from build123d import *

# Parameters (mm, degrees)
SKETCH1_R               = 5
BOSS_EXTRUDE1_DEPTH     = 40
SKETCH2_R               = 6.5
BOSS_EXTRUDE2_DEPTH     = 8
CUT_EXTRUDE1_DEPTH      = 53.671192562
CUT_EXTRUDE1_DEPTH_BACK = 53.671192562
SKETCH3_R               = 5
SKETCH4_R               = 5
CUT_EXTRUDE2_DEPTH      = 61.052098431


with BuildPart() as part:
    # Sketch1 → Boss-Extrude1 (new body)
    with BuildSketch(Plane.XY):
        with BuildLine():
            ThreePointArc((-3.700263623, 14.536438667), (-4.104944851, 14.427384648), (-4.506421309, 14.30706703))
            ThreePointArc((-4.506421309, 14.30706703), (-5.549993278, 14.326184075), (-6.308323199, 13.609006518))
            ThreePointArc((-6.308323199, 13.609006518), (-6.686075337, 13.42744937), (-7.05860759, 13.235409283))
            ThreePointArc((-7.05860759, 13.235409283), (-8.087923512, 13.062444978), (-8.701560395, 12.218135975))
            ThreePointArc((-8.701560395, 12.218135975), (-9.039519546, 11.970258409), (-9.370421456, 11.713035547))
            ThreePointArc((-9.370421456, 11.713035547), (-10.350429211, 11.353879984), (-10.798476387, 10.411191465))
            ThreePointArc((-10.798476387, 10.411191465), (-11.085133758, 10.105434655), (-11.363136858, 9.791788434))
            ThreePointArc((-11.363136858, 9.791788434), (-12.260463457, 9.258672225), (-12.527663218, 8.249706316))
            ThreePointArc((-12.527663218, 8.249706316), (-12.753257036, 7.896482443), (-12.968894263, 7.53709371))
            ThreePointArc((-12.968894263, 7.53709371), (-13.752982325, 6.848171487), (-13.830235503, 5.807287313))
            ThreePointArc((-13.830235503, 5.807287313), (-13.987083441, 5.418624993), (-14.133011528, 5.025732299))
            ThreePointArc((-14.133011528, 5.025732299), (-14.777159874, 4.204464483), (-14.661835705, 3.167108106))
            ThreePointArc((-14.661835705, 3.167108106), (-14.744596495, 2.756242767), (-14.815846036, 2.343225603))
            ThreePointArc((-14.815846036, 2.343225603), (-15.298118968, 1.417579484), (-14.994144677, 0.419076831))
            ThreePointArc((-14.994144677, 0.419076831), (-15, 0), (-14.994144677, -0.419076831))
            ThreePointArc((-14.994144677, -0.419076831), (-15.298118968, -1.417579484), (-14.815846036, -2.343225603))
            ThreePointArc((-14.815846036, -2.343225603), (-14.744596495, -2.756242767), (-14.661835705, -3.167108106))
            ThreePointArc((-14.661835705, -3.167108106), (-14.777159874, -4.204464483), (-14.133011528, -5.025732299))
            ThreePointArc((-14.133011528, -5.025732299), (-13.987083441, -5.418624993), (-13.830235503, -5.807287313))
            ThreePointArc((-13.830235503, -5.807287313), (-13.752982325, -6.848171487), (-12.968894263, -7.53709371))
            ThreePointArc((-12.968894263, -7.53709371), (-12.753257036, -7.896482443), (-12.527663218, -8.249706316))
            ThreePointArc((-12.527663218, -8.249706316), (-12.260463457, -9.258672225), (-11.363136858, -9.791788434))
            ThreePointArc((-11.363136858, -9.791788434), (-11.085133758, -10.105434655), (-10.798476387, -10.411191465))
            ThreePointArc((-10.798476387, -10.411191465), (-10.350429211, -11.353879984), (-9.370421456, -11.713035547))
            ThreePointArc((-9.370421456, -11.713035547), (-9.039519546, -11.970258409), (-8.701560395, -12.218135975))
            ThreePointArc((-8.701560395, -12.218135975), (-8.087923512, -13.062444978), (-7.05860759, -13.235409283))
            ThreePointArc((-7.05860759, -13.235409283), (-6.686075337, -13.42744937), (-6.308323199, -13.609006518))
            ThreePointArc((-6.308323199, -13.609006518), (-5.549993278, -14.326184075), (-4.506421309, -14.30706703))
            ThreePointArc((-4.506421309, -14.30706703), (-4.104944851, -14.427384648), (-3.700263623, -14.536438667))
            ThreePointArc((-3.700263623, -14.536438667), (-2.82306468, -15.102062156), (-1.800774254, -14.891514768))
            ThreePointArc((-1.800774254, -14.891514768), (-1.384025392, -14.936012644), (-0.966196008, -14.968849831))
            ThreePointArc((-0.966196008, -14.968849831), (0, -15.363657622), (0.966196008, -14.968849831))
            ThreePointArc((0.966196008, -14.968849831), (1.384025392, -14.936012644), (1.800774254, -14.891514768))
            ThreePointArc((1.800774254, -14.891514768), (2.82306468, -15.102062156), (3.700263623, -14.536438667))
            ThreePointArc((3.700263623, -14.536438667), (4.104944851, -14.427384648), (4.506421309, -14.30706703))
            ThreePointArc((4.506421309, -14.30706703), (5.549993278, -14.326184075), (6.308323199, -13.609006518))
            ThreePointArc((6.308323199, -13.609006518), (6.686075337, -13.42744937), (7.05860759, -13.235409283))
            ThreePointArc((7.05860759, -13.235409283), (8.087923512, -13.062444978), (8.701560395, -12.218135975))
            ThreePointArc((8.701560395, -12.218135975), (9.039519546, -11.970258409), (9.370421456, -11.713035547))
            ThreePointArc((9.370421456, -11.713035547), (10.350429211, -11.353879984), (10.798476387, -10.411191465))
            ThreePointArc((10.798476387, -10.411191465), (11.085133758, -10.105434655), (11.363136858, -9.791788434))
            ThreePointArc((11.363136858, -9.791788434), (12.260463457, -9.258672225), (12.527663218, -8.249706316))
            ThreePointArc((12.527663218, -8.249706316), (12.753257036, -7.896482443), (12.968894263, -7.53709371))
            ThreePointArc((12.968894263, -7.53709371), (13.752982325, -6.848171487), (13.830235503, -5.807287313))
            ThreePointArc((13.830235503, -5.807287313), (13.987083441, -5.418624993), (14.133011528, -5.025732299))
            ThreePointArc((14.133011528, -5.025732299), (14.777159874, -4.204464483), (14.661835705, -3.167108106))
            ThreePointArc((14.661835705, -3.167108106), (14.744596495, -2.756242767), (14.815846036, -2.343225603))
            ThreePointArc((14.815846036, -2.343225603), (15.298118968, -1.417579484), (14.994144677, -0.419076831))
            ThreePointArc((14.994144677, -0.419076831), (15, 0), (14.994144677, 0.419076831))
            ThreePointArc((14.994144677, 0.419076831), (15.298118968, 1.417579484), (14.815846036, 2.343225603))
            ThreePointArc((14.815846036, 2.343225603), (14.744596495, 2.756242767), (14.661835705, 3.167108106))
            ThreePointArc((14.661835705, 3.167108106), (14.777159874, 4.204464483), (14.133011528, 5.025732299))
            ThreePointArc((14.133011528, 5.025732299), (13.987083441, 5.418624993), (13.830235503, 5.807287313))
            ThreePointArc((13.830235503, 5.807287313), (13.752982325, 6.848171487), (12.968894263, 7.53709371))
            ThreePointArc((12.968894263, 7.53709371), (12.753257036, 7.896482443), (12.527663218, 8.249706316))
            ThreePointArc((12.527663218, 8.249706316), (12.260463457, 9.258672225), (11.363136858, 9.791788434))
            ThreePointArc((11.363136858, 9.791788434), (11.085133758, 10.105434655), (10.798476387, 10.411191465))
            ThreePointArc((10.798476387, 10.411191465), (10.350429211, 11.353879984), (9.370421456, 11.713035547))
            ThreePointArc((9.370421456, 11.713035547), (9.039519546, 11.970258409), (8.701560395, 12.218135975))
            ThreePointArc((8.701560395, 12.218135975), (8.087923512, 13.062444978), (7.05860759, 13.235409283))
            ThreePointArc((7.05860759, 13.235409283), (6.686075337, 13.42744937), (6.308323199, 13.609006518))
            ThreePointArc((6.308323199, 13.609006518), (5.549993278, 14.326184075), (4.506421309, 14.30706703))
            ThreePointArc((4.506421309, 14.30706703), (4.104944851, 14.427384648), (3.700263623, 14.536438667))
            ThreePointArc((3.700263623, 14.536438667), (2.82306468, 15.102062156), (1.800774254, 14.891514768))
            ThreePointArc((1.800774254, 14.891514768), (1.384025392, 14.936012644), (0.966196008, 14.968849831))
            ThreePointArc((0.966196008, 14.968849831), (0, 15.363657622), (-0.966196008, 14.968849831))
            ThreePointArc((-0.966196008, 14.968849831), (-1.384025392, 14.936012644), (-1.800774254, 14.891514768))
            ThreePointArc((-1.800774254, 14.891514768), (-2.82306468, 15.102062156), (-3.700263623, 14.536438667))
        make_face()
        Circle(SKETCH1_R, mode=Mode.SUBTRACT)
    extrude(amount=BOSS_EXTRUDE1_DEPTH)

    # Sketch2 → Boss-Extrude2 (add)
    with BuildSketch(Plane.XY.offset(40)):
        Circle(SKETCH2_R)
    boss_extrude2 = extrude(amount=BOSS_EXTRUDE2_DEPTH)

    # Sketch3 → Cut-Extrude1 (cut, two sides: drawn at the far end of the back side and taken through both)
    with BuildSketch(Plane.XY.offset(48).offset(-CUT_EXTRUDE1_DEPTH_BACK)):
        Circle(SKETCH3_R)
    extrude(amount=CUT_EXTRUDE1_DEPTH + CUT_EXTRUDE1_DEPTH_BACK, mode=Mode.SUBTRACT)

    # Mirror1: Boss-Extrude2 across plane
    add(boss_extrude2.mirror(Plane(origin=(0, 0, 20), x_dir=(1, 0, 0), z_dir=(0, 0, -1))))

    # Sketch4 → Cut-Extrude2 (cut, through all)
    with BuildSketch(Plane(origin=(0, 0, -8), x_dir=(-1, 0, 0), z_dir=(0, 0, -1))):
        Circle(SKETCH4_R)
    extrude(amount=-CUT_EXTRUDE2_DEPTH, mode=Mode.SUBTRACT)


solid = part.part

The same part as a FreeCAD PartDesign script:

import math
import FreeCAD as App
import Part
import Sketcher
from FreeCAD import Vector

doc = App.newDocument("Part")
body = doc.addObject("PartDesign::Body", "Body")

# Sketch on XY plane
sketch1 = body.newObject("Sketcher::SketchObject", "Sketch")
sketch1.AttachmentSupport = (doc.getObject("XY_Plane"), [""])
sketch1.MapMode = "FlatFace"
sketch1.addGeometry(Part.ArcOfCircle(Part.Circle(Vector(0, 0, 0), Vector(0, 0, 1), 15), math.radians(104.281389), math.radians(107.483317)), False)
sketch1.addGeometry(Part.ArcOfCircle(Part.Circle(Vector(-5.051599, 13.039681, 0), Vector(0, 0, 1), 1.379669), math.radians(66.724578), math.radians(155.628363)), False)
sketch1.addGeometry(Part.ArcOfCircle(Part.Circle(Vector(0, 0, 0), Vector(0, 0, 1), 15), math.radians(114.869624), math.radians(118.071552)), False)
sketch1.addGeometry(Part.ArcOfCircle(Part.Circle(Vector(-7.361622, 11.889427, 0), Vector(0, 0, 1), 1.379669), math.radians(77.312813), math.radians(166.216599)), False)
sketch1.addGeometry(Part.ArcOfCircle(Part.Circle(Vector(0, 0, 0), Vector(0, 0, 1), 15), math.radians(125.45786), math.radians(128.659787)), False)
sketch1.addGeometry(Part.ArcOfCircle(Part.Circle(Vector(-9.420952, 10.334293, 0), Vector(0, 0, 1), 1.379669), math.radians(87.901048), math.radians(176.804834)), False)
sketch1.addGeometry(Part.ArcOfCircle(Part.Circle(Vector(0, 0, 0), Vector(0, 0, 1), 15), math.radians(136.046095), math.radians(139.248023)), False)
sketch1.addGeometry(Part.ArcOfCircle(Part.Circle(Vector(-11.159464, 8.427236, 0), Vector(0, 0, 1), 1.379669), math.radians(98.489284), math.radians(187.393069)), False)
sketch1.addGeometry(Part.ArcOfCircle(Part.Circle(Vector(0, 0, 0), Vector(0, 0, 1), 15), math.radians(146.63433), math.radians(149.836258)), False)
sketch1.addGeometry(Part.ArcOfCircle(Part.Circle(Vector(-12.517954, 6.2332, 0), Vector(0, 0, 1), 1.379669), math.radians(109.077519), math.radians(197.981305)), False)
sketch1.addGeometry(Part.ArcOfCircle(Part.Circle(Vector(0, 0, 0), Vector(0, 0, 1), 15), math.radians(157.222566), math.radians(160.424493)), False)
sketch1.addGeometry(Part.ArcOfCircle(Part.Circle(Vector(-13.450159, 3.8269, 0), Vector(0, 0, 1), 1.379669), math.radians(119.665754), math.radians(208.56954)), False)
sketch1.addGeometry(Part.ArcOfCircle(Part.Circle(Vector(0, 0, 0), Vector(0, 0, 1), 15), math.radians(167.810801), math.radians(171.012729)), False)
sketch1.addGeometry(Part.ArcOfCircle(Part.Circle(Vector(-13.924336, 1.29028, 0), Vector(0, 0, 1), 1.379669), math.radians(130.25399), math.radians(219.157775)), False)
sketch1.addGeometry(Part.ArcOfCircle(Part.Circle(Vector(-0.000001, 0, 0), Vector(0, 0, 1), 14.999999), math.radians(178.399036), math.radians(181.600964)), False)
sketch1.addGeometry(Part.ArcOfCircle(Part.Circle(Vector(-13.924336, -1.29028, 0), Vector(0, 0, 1), 1.379669), math.radians(140.842225), math.radians(229.74601)), False)
sketch1.addGeometry(Part.ArcOfCircle(Part.Circle(Vector(0, 0, 0), Vector(0, 0, 1), 15), math.radians(-171.012729), math.radians(-167.810801)), False)
sketch1.addGeometry(Part.ArcOfCircle(Part.Circle(Vector(-13.450159, -3.8269, 0), Vector(0, 0, 1), 1.379669), math.radians(151.43046), math.radians(240.334246)), False)
sketch1.addGeometry(Part.ArcOfCircle(Part.Circle(Vector(0, 0, 0), Vector(0, 0, 1), 15), math.radians(-160.424493), math.radians(-157.222566)), False)
sketch1.addGeometry(Part.ArcOfCircle(Part.Circle(Vector(-12.517954, -6.2332, 0), Vector(0, 0, 1), 1.379669), math.radians(162.018695), math.radians(250.922481)), False)
sketch1.addGeometry(Part.ArcOfCircle(Part.Circle(Vector(0, 0, 0), Vector(0, 0, 1), 15), math.radians(-149.836258), math.radians(-146.63433)), False)
sketch1.addGeometry(Part.ArcOfCircle(Part.Circle(Vector(-11.159464, -8.427236, 0), Vector(0, 0, 1), 1.379669), math.radians(172.606931), math.radians(261.510716)), False)
sketch1.addGeometry(Part.ArcOfCircle(Part.Circle(Vector(0, 0, 0), Vector(0, 0, 1), 15), math.radians(-139.248023), math.radians(-136.046095)), False)
sketch1.addGeometry(Part.ArcOfCircle(Part.Circle(Vector(-9.420952, -10.334293, 0), Vector(0, 0, 1), 1.379669), math.radians(-176.804834), math.radians(-87.901048)), False)
sketch1.addGeometry(Part.ArcOfCircle(Part.Circle(Vector(0, 0, 0), Vector(0, 0, 1), 15), math.radians(-128.659787), math.radians(-125.45786)), False)
sketch1.addGeometry(Part.ArcOfCircle(Part.Circle(Vector(-7.361622, -11.889427, 0), Vector(0, 0, 1), 1.379669), math.radians(-166.216599), math.radians(-77.312813)), False)
sketch1.addGeometry(Part.ArcOfCircle(Part.Circle(Vector(0, 0, 0), Vector(0, 0, 1), 15), math.radians(-118.071552), math.radians(-114.869624)), False)
sketch1.addGeometry(Part.ArcOfCircle(Part.Circle(Vector(-5.051599, -13.039681, 0), Vector(0, 0, 1), 1.379669), math.radians(-155.628363), math.radians(-66.724578)), False)
sketch1.addGeometry(Part.ArcOfCircle(Part.Circle(Vector(0, 0, 0), Vector(0, 0, 1), 15), math.radians(-107.483317), math.radians(-104.281389)), False)
sketch1.addGeometry(Part.ArcOfCircle(Part.Circle(Vector(-2.569551, -13.745885, 0), Vector(0, 0, 1), 1.379669), math.radians(-145.040128), math.radians(-56.136342)), False)
sketch1.addGeometry(Part.ArcOfCircle(Part.Circle(Vector(0, 0.000001, 0), Vector(0, 0, 1), 15.000001), math.radians(-96.895081), math.radians(-93.693154)), False)
sketch1.addGeometry(Part.ArcOfCircle(Part.Circle(Vector(0, -13.983989, 0), Vector(0, 0, 1), 1.379669), math.radians(-134.451893), math.radians(-45.548107)), False)
sketch1.addGeometry(Part.ArcOfCircle(Part.Circle(Vector(0, 0.000001, 0), Vector(0, 0, 1), 15.000001), math.radians(-86.306846), math.radians(-83.104919)), False)
sketch1.addGeometry(Part.ArcOfCircle(Part.Circle(Vector(2.569551, -13.745885, 0), Vector(0, 0, 1), 1.379669), math.radians(-123.863658), math.radians(-34.959872)), False)
sketch1.addGeometry(Part.ArcOfCircle(Part.Circle(Vector(0, 0, 0), Vector(0, 0, 1), 15), math.radians(-75.718611), math.radians(-72.516683)), False)
sketch1.addGeometry(Part.ArcOfCircle(Part.Circle(Vector(5.051599, -13.039681, 0), Vector(0, 0, 1), 1.379669), math.radians(-113.275422), math.radians(-24.371637)), False)
sketch1.addGeometry(Part.ArcOfCircle(Part.Circle(Vector(0, 0, 0), Vector(0, 0, 1), 15), math.radians(-65.130376), math.radians(-61.928448)), False)
sketch1.addGeometry(Part.ArcOfCircle(Part.Circle(Vector(7.361622, -11.889427, 0), Vector(0, 0, 1), 1.379669), math.radians(-102.687187), math.radians(-13.783401)), False)
sketch1.addGeometry(Part.ArcOfCircle(Part.Circle(Vector(0, 0, 0), Vector(0, 0, 1), 15), math.radians(-54.54214), math.radians(-51.340213)), False)
sketch1.addGeometry(Part.ArcOfCircle(Part.Circle(Vector(9.420952, -10.334293, 0), Vector(0, 0, 1), 1.379669), math.radians(-92.098952), math.radians(-3.195166)), False)
sketch1.addGeometry(Part.ArcOfCircle(Part.Circle(Vector(0, 0, 0), Vector(0, 0, 1), 15), math.radians(-43.953905), math.radians(-40.751977)), False)
sketch1.addGeometry(Part.ArcOfCircle(Part.Circle(Vector(11.159464, -8.427236, 0), Vector(0, 0, 1), 1.379669), math.radians(-81.510716), math.radians(7.393069)), False)
sketch1.addGeometry(Part.ArcOfCircle(Part.Circle(Vector(0, 0, 0), Vector(0, 0, 1), 15), math.radians(-33.36567), math.radians(-30.163742)), False)
sketch1.addGeometry(Part.ArcOfCircle(Part.Circle(Vector(12.517954, -6.2332, 0), Vector(0, 0, 1), 1.379669), math.radians(-70.922481), math.radians(17.981305)), False)
sketch1.addGeometry(Part.ArcOfCircle(Part.Circle(Vector(0, 0, 0), Vector(0, 0, 1), 15), math.radians(-22.777434), math.radians(-19.575507)), False)
sketch1.addGeometry(Part.ArcOfCircle(Part.Circle(Vector(13.450159, -3.8269, 0), Vector(0, 0, 1), 1.379669), math.radians(-60.334246), math.radians(28.56954)), False)
sketch1.addGeometry(Part.ArcOfCircle(Part.Circle(Vector(0, 0, 0), Vector(0, 0, 1), 15), math.radians(-12.189199), math.radians(-8.987271)), False)
sketch1.addGeometry(Part.ArcOfCircle(Part.Circle(Vector(13.924336, -1.29028, 0), Vector(0, 0, 1), 1.379669), math.radians(-49.74601), math.radians(39.157775)), False)
sketch1.addGeometry(Part.ArcOfCircle(Part.Circle(Vector(0.000001, 0, 0), Vector(0, 0, 1), 14.999999), math.radians(-1.600964), math.radians(1.600964)), False)
sketch1.addGeometry(Part.ArcOfCircle(Part.Circle(Vector(13.924336, 1.29028, 0), Vector(0, 0, 1), 1.379669), math.radians(-39.157775), math.radians(49.74601)), False)
sketch1.addGeometry(Part.ArcOfCircle(Part.Circle(Vector(0, 0, 0), Vector(0, 0, 1), 15), math.radians(8.987271), math.radians(12.189199)), False)
sketch1.addGeometry(Part.ArcOfCircle(Part.Circle(Vector(13.450159, 3.8269, 0), Vector(0, 0, 1), 1.379669), math.radians(-28.56954), math.radians(60.334246)), False)
sketch1.addGeometry(Part.ArcOfCircle(Part.Circle(Vector(0, 0, 0), Vector(0, 0, 1), 15), math.radians(19.575507), math.radians(22.777434)), False)
sketch1.addGeometry(Part.ArcOfCircle(Part.Circle(Vector(12.517954, 6.2332, 0), Vector(0, 0, 1), 1.379669), math.radians(-17.981305), math.radians(70.922481)), False)
sketch1.addGeometry(Part.ArcOfCircle(Part.Circle(Vector(0, 0, 0), Vector(0, 0, 1), 15), math.radians(30.163742), math.radians(33.36567)), False)
sketch1.addGeometry(Part.ArcOfCircle(Part.Circle(Vector(11.159464, 8.427236, 0), Vector(0, 0, 1), 1.379669), math.radians(-7.393069), math.radians(81.510716)), False)
sketch1.addGeometry(Part.ArcOfCircle(Part.Circle(Vector(0, 0, 0), Vector(0, 0, 1), 15), math.radians(40.751977), math.radians(43.953905)), False)
sketch1.addGeometry(Part.ArcOfCircle(Part.Circle(Vector(9.420952, 10.334293, 0), Vector(0, 0, 1), 1.379669), math.radians(3.195166), math.radians(92.098952)), False)
sketch1.addGeometry(Part.ArcOfCircle(Part.Circle(Vector(0, 0, 0), Vector(0, 0, 1), 15), math.radians(51.340213), math.radians(54.54214)), False)
sketch1.addGeometry(Part.ArcOfCircle(Part.Circle(Vector(7.361622, 11.889427, 0), Vector(0, 0, 1), 1.379669), math.radians(13.783401), math.radians(102.687187)), False)
sketch1.addGeometry(Part.ArcOfCircle(Part.Circle(Vector(0, 0, 0), Vector(0, 0, 1), 15), math.radians(61.928448), math.radians(65.130376)), False)
sketch1.addGeometry(Part.ArcOfCircle(Part.Circle(Vector(5.051599, 13.039681, 0), Vector(0, 0, 1), 1.379669), math.radians(24.371637), math.radians(113.275422)), False)
sketch1.addGeometry(Part.ArcOfCircle(Part.Circle(Vector(0, 0, 0), Vector(0, 0, 1), 15), math.radians(72.516683), math.radians(75.718611)), False)
sketch1.addGeometry(Part.ArcOfCircle(Part.Circle(Vector(2.569551, 13.745885, 0), Vector(0, 0, 1), 1.379669), math.radians(34.959872), math.radians(123.863658)), False)
sketch1.addGeometry(Part.ArcOfCircle(Part.Circle(Vector(0, -0.000001, 0), Vector(0, 0, 1), 15.000001), math.radians(83.104919), math.radians(86.306846)), False)
sketch1.addGeometry(Part.ArcOfCircle(Part.Circle(Vector(0, 13.983989, 0), Vector(0, 0, 1), 1.379669), math.radians(45.548107), math.radians(134.451893)), False)
sketch1.addGeometry(Part.ArcOfCircle(Part.Circle(Vector(0, -0.000001, 0), Vector(0, 0, 1), 15.000001), math.radians(93.693154), math.radians(96.895081)), False)
sketch1.addGeometry(Part.ArcOfCircle(Part.Circle(Vector(-2.569551, 13.745885, 0), Vector(0, 0, 1), 1.379669), math.radians(56.136342), math.radians(145.040128)), False)
sketch1.addGeometry(Part.Circle(Vector(0, 0, 0), Vector(0, 0, 1), 5), False)
sketch1.addConstraint(Sketcher.Constraint("Coincident", 0, 2, 1, 1))
sketch1.addConstraint(Sketcher.Constraint("Coincident", 1, 2, 2, 1))
sketch1.addConstraint(Sketcher.Constraint("Coincident", 2, 2, 3, 1))
sketch1.addConstraint(Sketcher.Constraint("Coincident", 3, 2, 4, 1))
sketch1.addConstraint(Sketcher.Constraint("Coincident", 4, 2, 5, 1))
sketch1.addConstraint(Sketcher.Constraint("Coincident", 5, 2, 6, 1))
sketch1.addConstraint(Sketcher.Constraint("Coincident", 6, 2, 7, 1))
sketch1.addConstraint(Sketcher.Constraint("Coincident", 7, 2, 8, 1))
sketch1.addConstraint(Sketcher.Constraint("Coincident", 8, 2, 9, 1))
sketch1.addConstraint(Sketcher.Constraint("Coincident", 9, 2, 10, 1))
sketch1.addConstraint(Sketcher.Constraint("Coincident", 10, 2, 11, 1))
sketch1.addConstraint(Sketcher.Constraint("Coincident", 11, 2, 12, 1))
sketch1.addConstraint(Sketcher.Constraint("Coincident", 12, 2, 13, 1))
sketch1.addConstraint(Sketcher.Constraint("Coincident", 13, 2, 14, 1))
sketch1.addConstraint(Sketcher.Constraint("Coincident", 14, 2, 15, 1))
sketch1.addConstraint(Sketcher.Constraint("Coincident", 15, 2, 16, 1))
sketch1.addConstraint(Sketcher.Constraint("Coincident", 16, 2, 17, 1))
sketch1.addConstraint(Sketcher.Constraint("Coincident", 17, 2, 18, 1))
sketch1.addConstraint(Sketcher.Constraint("Coincident", 18, 2, 19, 1))
sketch1.addConstraint(Sketcher.Constraint("Coincident", 19, 2, 20, 1))
sketch1.addConstraint(Sketcher.Constraint("Coincident", 20, 2, 21, 1))
sketch1.addConstraint(Sketcher.Constraint("Coincident", 21, 2, 22, 1))
sketch1.addConstraint(Sketcher.Constraint("Coincident", 22, 2, 23, 1))
sketch1.addConstraint(Sketcher.Constraint("Coincident", 23, 2, 24, 1))
sketch1.addConstraint(Sketcher.Constraint("Coincident", 24, 2, 25, 1))
sketch1.addConstraint(Sketcher.Constraint("Coincident", 25, 2, 26, 1))
sketch1.addConstraint(Sketcher.Constraint("Coincident", 26, 2, 27, 1))
sketch1.addConstraint(Sketcher.Constraint("Coincident", 27, 2, 28, 1))
sketch1.addConstraint(Sketcher.Constraint("Coincident", 28, 2, 29, 1))
sketch1.addConstraint(Sketcher.Constraint("Coincident", 29, 2, 30, 1))
sketch1.addConstraint(Sketcher.Constraint("Coincident", 30, 2, 31, 1))
sketch1.addConstraint(Sketcher.Constraint("Coincident", 31, 2, 32, 1))
sketch1.addConstraint(Sketcher.Constraint("Coincident", 32, 2, 33, 1))
sketch1.addConstraint(Sketcher.Constraint("Coincident", 33, 2, 34, 1))
sketch1.addConstraint(Sketcher.Constraint("Coincident", 34, 2, 35, 1))
sketch1.addConstraint(Sketcher.Constraint("Coincident", 35, 2, 36, 1))
sketch1.addConstraint(Sketcher.Constraint("Coincident", 36, 2, 37, 1))
sketch1.addConstraint(Sketcher.Constraint("Coincident", 37, 2, 38, 1))
sketch1.addConstraint(Sketcher.Constraint("Coincident", 38, 2, 39, 1))
sketch1.addConstraint(Sketcher.Constraint("Coincident", 39, 2, 40, 1))
sketch1.addConstraint(Sketcher.Constraint("Coincident", 40, 2, 41, 1))
sketch1.addConstraint(Sketcher.Constraint("Coincident", 41, 2, 42, 1))
sketch1.addConstraint(Sketcher.Constraint("Coincident", 42, 2, 43, 1))
sketch1.addConstraint(Sketcher.Constraint("Coincident", 43, 2, 44, 1))
sketch1.addConstraint(Sketcher.Constraint("Coincident", 44, 2, 45, 1))
sketch1.addConstraint(Sketcher.Constraint("Coincident", 45, 2, 46, 1))
sketch1.addConstraint(Sketcher.Constraint("Coincident", 46, 2, 47, 1))
sketch1.addConstraint(Sketcher.Constraint("Coincident", 47, 2, 48, 1))
sketch1.addConstraint(Sketcher.Constraint("Coincident", 48, 2, 49, 1))
sketch1.addConstraint(Sketcher.Constraint("Coincident", 49, 2, 50, 1))
sketch1.addConstraint(Sketcher.Constraint("Coincident", 50, 2, 51, 1))
sketch1.addConstraint(Sketcher.Constraint("Coincident", 51, 2, 52, 1))
sketch1.addConstraint(Sketcher.Constraint("Coincident", 52, 2, 53, 1))
sketch1.addConstraint(Sketcher.Constraint("Coincident", 53, 2, 54, 1))
sketch1.addConstraint(Sketcher.Constraint("Coincident", 54, 2, 55, 1))
sketch1.addConstraint(Sketcher.Constraint("Coincident", 55, 2, 56, 1))
sketch1.addConstraint(Sketcher.Constraint("Coincident", 56, 2, 57, 1))
sketch1.addConstraint(Sketcher.Constraint("Coincident", 57, 2, 58, 1))
sketch1.addConstraint(Sketcher.Constraint("Coincident", 58, 2, 59, 1))
sketch1.addConstraint(Sketcher.Constraint("Coincident", 59, 2, 60, 1))
sketch1.addConstraint(Sketcher.Constraint("Coincident", 60, 2, 61, 1))
sketch1.addConstraint(Sketcher.Constraint("Coincident", 61, 2, 62, 1))
sketch1.addConstraint(Sketcher.Constraint("Coincident", 62, 2, 63, 1))
sketch1.addConstraint(Sketcher.Constraint("Coincident", 63, 2, 64, 1))
sketch1.addConstraint(Sketcher.Constraint("Coincident", 64, 2, 65, 1))
sketch1.addConstraint(Sketcher.Constraint("Coincident", 65, 2, 66, 1))
sketch1.addConstraint(Sketcher.Constraint("Coincident", 66, 2, 67, 1))
sketch1.addConstraint(Sketcher.Constraint("Coincident", 67, 2, 0, 1))
sketch1.addConstraint(Sketcher.Constraint("Coincident", 0, 3, -1, 1))
sketch1.addConstraint(Sketcher.Constraint("Coincident", 2, 3, -1, 1))
sketch1.addConstraint(Sketcher.Constraint("Coincident", 4, 3, -1, 1))
sketch1.addConstraint(Sketcher.Constraint("Coincident", 6, 3, -1, 1))
sketch1.addConstraint(Sketcher.Constraint("Coincident", 8, 3, -1, 1))
sketch1.addConstraint(Sketcher.Constraint("Coincident", 10, 3, -1, 1))
sketch1.addConstraint(Sketcher.Constraint("Coincident", 12, 3, -1, 1))
sketch1.addConstraint(Sketcher.Constraint("Coincident", 14, 3, -1, 1))
sketch1.addConstraint(Sketcher.Constraint("Coincident", 16, 3, -1, 1))
sketch1.addConstraint(Sketcher.Constraint("Coincident", 18, 3, -1, 1))
sketch1.addConstraint(Sketcher.Constraint("Coincident", 20, 3, -1, 1))
sketch1.addConstraint(Sketcher.Constraint("Coincident", 22, 3, -1, 1))
sketch1.addConstraint(Sketcher.Constraint("Coincident", 24, 3, -1, 1))
sketch1.addConstraint(Sketcher.Constraint("Coincident", 26, 3, -1, 1))
sketch1.addConstraint(Sketcher.Constraint("Coincident", 28, 3, -1, 1))
sketch1.addConstraint(Sketcher.Constraint("Coincident", 30, 3, -1, 1))
sketch1.addConstraint(Sketcher.Constraint("Coincident", 32, 3, -1, 1))
sketch1.addConstraint(Sketcher.Constraint("Coincident", 34, 3, -1, 1))
sketch1.addConstraint(Sketcher.Constraint("Coincident", 36, 3, -1, 1))
sketch1.addConstraint(Sketcher.Constraint("Coincident", 38, 3, -1, 1))
sketch1.addConstraint(Sketcher.Constraint("Coincident", 40, 3, -1, 1))
sketch1.addConstraint(Sketcher.Constraint("Coincident", 42, 3, -1, 1))
sketch1.addConstraint(Sketcher.Constraint("Coincident", 44, 3, -1, 1))
sketch1.addConstraint(Sketcher.Constraint("Coincident", 46, 3, -1, 1))
sketch1.addConstraint(Sketcher.Constraint("Coincident", 48, 3, -1, 1))
sketch1.addConstraint(Sketcher.Constraint("Coincident", 50, 3, -1, 1))
sketch1.addConstraint(Sketcher.Constraint("Coincident", 52, 3, -1, 1))
sketch1.addConstraint(Sketcher.Constraint("Coincident", 54, 3, -1, 1))
sketch1.addConstraint(Sketcher.Constraint("Coincident", 56, 3, -1, 1))
sketch1.addConstraint(Sketcher.Constraint("Coincident", 58, 3, -1, 1))
sketch1.addConstraint(Sketcher.Constraint("Coincident", 60, 3, -1, 1))
sketch1.addConstraint(Sketcher.Constraint("Coincident", 62, 3, -1, 1))
sketch1.addConstraint(Sketcher.Constraint("Coincident", 64, 3, -1, 1))
sketch1.addConstraint(Sketcher.Constraint("Coincident", 66, 3, -1, 1))
sketch1.addConstraint(Sketcher.Constraint("Coincident", 68, 3, -1, 1))
sketch1.addConstraint(Sketcher.Constraint("Equal", 0, 2))
sketch1.addConstraint(Sketcher.Constraint("Equal", 1, 3))
sketch1.addConstraint(Sketcher.Constraint("Equal", 2, 4))
sketch1.addConstraint(Sketcher.Constraint("Equal", 3, 5))
sketch1.addConstraint(Sketcher.Constraint("Equal", 4, 6))
sketch1.addConstraint(Sketcher.Constraint("Equal", 5, 7))
sketch1.addConstraint(Sketcher.Constraint("Equal", 6, 8))
sketch1.addConstraint(Sketcher.Constraint("Equal", 7, 9))
sketch1.addConstraint(Sketcher.Constraint("Equal", 8, 10))
sketch1.addConstraint(Sketcher.Constraint("Equal", 9, 11))
sketch1.addConstraint(Sketcher.Constraint("Equal", 10, 12))
sketch1.addConstraint(Sketcher.Constraint("Equal", 11, 13))
sketch1.addConstraint(Sketcher.Constraint("Equal", 12, 14))
sketch1.addConstraint(Sketcher.Constraint("Equal", 13, 15))
sketch1.addConstraint(Sketcher.Constraint("Equal", 14, 16))
sketch1.addConstraint(Sketcher.Constraint("Equal", 15, 17))
sketch1.addConstraint(Sketcher.Constraint("Equal", 16, 18))
sketch1.addConstraint(Sketcher.Constraint("Equal", 17, 19))
sketch1.addConstraint(Sketcher.Constraint("Equal", 18, 20))
sketch1.addConstraint(Sketcher.Constraint("Equal", 19, 21))
sketch1.addConstraint(Sketcher.Constraint("Equal", 20, 22))
sketch1.addConstraint(Sketcher.Constraint("Equal", 21, 23))
sketch1.addConstraint(Sketcher.Constraint("Equal", 22, 24))
sketch1.addConstraint(Sketcher.Constraint("Equal", 23, 25))
sketch1.addConstraint(Sketcher.Constraint("Equal", 24, 26))
sketch1.addConstraint(Sketcher.Constraint("Equal", 25, 27))
sketch1.addConstraint(Sketcher.Constraint("Equal", 26, 28))
sketch1.addConstraint(Sketcher.Constraint("Equal", 27, 29))
sketch1.addConstraint(Sketcher.Constraint("Equal", 28, 30))
sketch1.addConstraint(Sketcher.Constraint("Equal", 29, 31))
sketch1.addConstraint(Sketcher.Constraint("Equal", 30, 32))
sketch1.addConstraint(Sketcher.Constraint("Equal", 31, 33))
sketch1.addConstraint(Sketcher.Constraint("Equal", 32, 34))
sketch1.addConstraint(Sketcher.Constraint("Equal", 33, 35))
sketch1.addConstraint(Sketcher.Constraint("Equal", 34, 36))
sketch1.addConstraint(Sketcher.Constraint("Equal", 35, 37))
sketch1.addConstraint(Sketcher.Constraint("Equal", 36, 38))
sketch1.addConstraint(Sketcher.Constraint("Equal", 37, 39))
sketch1.addConstraint(Sketcher.Constraint("Equal", 38, 40))
sketch1.addConstraint(Sketcher.Constraint("Equal", 39, 41))
sketch1.addConstraint(Sketcher.Constraint("Equal", 40, 42))
sketch1.addConstraint(Sketcher.Constraint("Equal", 41, 43))
sketch1.addConstraint(Sketcher.Constraint("Equal", 42, 44))
sketch1.addConstraint(Sketcher.Constraint("Equal", 43, 45))
sketch1.addConstraint(Sketcher.Constraint("Equal", 44, 46))
sketch1.addConstraint(Sketcher.Constraint("Equal", 45, 47))
sketch1.addConstraint(Sketcher.Constraint("Equal", 46, 48))
sketch1.addConstraint(Sketcher.Constraint("Equal", 47, 49))
sketch1.addConstraint(Sketcher.Constraint("Equal", 48, 50))
sketch1.addConstraint(Sketcher.Constraint("Equal", 49, 51))
sketch1.addConstraint(Sketcher.Constraint("Equal", 50, 52))
sketch1.addConstraint(Sketcher.Constraint("Equal", 51, 53))
sketch1.addConstraint(Sketcher.Constraint("Equal", 52, 54))
sketch1.addConstraint(Sketcher.Constraint("Equal", 53, 55))
sketch1.addConstraint(Sketcher.Constraint("Equal", 54, 56))
sketch1.addConstraint(Sketcher.Constraint("Equal", 55, 57))
sketch1.addConstraint(Sketcher.Constraint("Equal", 56, 58))
sketch1.addConstraint(Sketcher.Constraint("Equal", 57, 59))
sketch1.addConstraint(Sketcher.Constraint("Equal", 58, 60))
sketch1.addConstraint(Sketcher.Constraint("Equal", 59, 61))
sketch1.addConstraint(Sketcher.Constraint("Equal", 60, 62))
sketch1.addConstraint(Sketcher.Constraint("Equal", 61, 63))
sketch1.addConstraint(Sketcher.Constraint("Equal", 62, 64))
sketch1.addConstraint(Sketcher.Constraint("Equal", 63, 65))
sketch1.addConstraint(Sketcher.Constraint("Equal", 64, 66))
sketch1.addConstraint(Sketcher.Constraint("Equal", 65, 67))
sketch1.addConstraint(Sketcher.Constraint("Symmetric", 1, 3, 35, 3, -1, 1))
sketch1.addConstraint(Sketcher.Constraint("Symmetric", 3, 3, 37, 3, -1, 1))
sketch1.addConstraint(Sketcher.Constraint("Symmetric", 5, 3, 39, 3, -1, 1))
sketch1.addConstraint(Sketcher.Constraint("Symmetric", 7, 3, 41, 3, -1, 1))
sketch1.addConstraint(Sketcher.Constraint("Symmetric", 9, 3, 43, 3, -1, 1))
sketch1.addConstraint(Sketcher.Constraint("Symmetric", 11, 3, 45, 3, -1, 1))
sketch1.addConstraint(Sketcher.Constraint("Symmetric", 13, 3, 47, 3, -1, 1))
sketch1.addConstraint(Sketcher.Constraint("Symmetric", 15, 3, 49, 3, -1, 1))
sketch1.addConstraint(Sketcher.Constraint("Symmetric", 17, 3, 51, 3, -1, 1))
sketch1.addConstraint(Sketcher.Constraint("Symmetric", 19, 3, 53, 3, -1, 1))
sketch1.addConstraint(Sketcher.Constraint("Symmetric", 21, 3, 55, 3, -1, 1))
sketch1.addConstraint(Sketcher.Constraint("Symmetric", 23, 3, 57, 3, -1, 1))
sketch1.addConstraint(Sketcher.Constraint("Symmetric", 25, 3, 59, 3, -1, 1))
sketch1.addConstraint(Sketcher.Constraint("Symmetric", 27, 3, 61, 3, -1, 1))
sketch1.addConstraint(Sketcher.Constraint("Symmetric", 29, 3, 63, 3, -1, 1))
sketch1.addConstraint(Sketcher.Constraint("Symmetric", 31, 3, 65, 3, -1, 1))
sketch1.addConstraint(Sketcher.Constraint("Symmetric", 33, 3, 67, 3, -1, 1))
sketch1.addConstraint(Sketcher.Constraint("Symmetric", 29, 3, 33, 3, -2))
sketch1.addConstraint(Sketcher.Constraint("Symmetric", 27, 3, 35, 3, -2))
sketch1.addConstraint(Sketcher.Constraint("Symmetric", 25, 3, 37, 3, -2))
sketch1.addConstraint(Sketcher.Constraint("Symmetric", 23, 3, 39, 3, -2))
sketch1.addConstraint(Sketcher.Constraint("Symmetric", 21, 3, 41, 3, -2))
sketch1.addConstraint(Sketcher.Constraint("Symmetric", 19, 3, 43, 3, -2))
sketch1.addConstraint(Sketcher.Constraint("Symmetric", 17, 3, 45, 3, -2))
sketch1.addConstraint(Sketcher.Constraint("Symmetric", 15, 3, 47, 3, -2))
sketch1.addConstraint(Sketcher.Constraint("PointOnObject", 31, 3, -2))
sketch1.addConstraint(Sketcher.Constraint("Diameter", 68, 10.0))
sketch1.addConstraint(Sketcher.Constraint("Radius", 0, 15.0))
sketch1.addConstraint(Sketcher.Constraint("Radius", 1, 1.379669))
sketch1.addConstraint(Sketcher.Constraint("DistanceX", 1, 3, -1, 1, 5.051599))
sketch1.addConstraint(Sketcher.Constraint("DistanceY", -1, 1, 9, 3, 6.2332))
sketch1.addConstraint(Sketcher.Constraint("DistanceY", -1, 1, 11, 3, 3.8269))
sketch1.addConstraint(Sketcher.Constraint("DistanceY", -1, 1, 1, 3, 13.039681))
sketch1.addConstraint(Sketcher.Constraint("DistanceX", 3, 3, -1, 1, 7.361622))
sketch1.addConstraint(Sketcher.Constraint("DistanceX", 11, 3, -1, 1, 13.450159))
sketch1.addConstraint(Sketcher.Constraint("DistanceY", -1, 1, 13, 3, 1.29028))
sketch1.addConstraint(Sketcher.Constraint("DistanceX", 29, 3, -1, 1, 2.569551))
sketch1.addConstraint(Sketcher.Constraint("DistanceY", 31, 3, -1, 1, 13.983989))
sketch1.addConstraint(Sketcher.Constraint("DistanceY", -1, 1, 2, 2, 13.235409))
sketch1.addConstraint(Sketcher.Constraint("DistanceX", 4, 2, -1, 1, 9.370421))
sketch1.addConstraint(Sketcher.Constraint("DistanceY", -1, 1, 5, 2, 10.411191))
sketch1.addConstraint(Sketcher.Constraint("DistanceY", -1, 1, 6, 2, 9.791788))
sketch1.addConstraint(Sketcher.Constraint("DistanceY", 28, 2, -1, 1, 14.536439))
sketch1.addConstraint(Sketcher.Constraint("DistanceX", 7, 3, -1, 1, 11.159464))
sketch1.addConstraint(Sketcher.Constraint("DistanceX", 9, 3, -1, 1, 12.517954))
sketch1.addConstraint(Sketcher.Constraint("DistanceX", 13, 3, -1, 1, 13.924336))
pad1 = body.newObject("PartDesign::Pad", "Pad")
pad1.Profile = sketch1
pad1.Length = 40

# Sketch on XY plane
sketch2 = body.newObject("Sketcher::SketchObject", "Sketch001")
sketch2.AttachmentSupport = (doc.getObject("XY_Plane"), [""])
sketch2.MapMode = "FlatFace"
sketch2.AttachmentOffset = App.Placement(Vector(0, 0, 40), App.Rotation())
sketch2.addGeometry(Part.Circle(Vector(0, 0, 0), Vector(0, 0, 1), 6.5), False)
sketch2.addConstraint(Sketcher.Constraint("Coincident", 0, 3, -1, 1))
sketch2.addConstraint(Sketcher.Constraint("Diameter", 0, 13.0))
pad2 = body.newObject("PartDesign::Pad", "Pad001")
pad2.Profile = sketch2
pad2.Length = 8

# Sketch on XY plane
sketch3 = body.newObject("Sketcher::SketchObject", "Sketch002")
sketch3.AttachmentSupport = (doc.getObject("XY_Plane"), [""])
sketch3.MapMode = "FlatFace"
sketch3.AttachmentOffset = App.Placement(Vector(0, 0, 48), App.Rotation())
sketch3.addGeometry(Part.Circle(Vector(0, 0, 0), Vector(0, 0, 1), 5), False)
sketch3.addConstraint(Sketcher.Constraint("Coincident", 0, 3, -1, 1))
sketch3.addConstraint(Sketcher.Constraint("Diameter", 0, 10.0))
pocket1 = body.newObject("PartDesign::Pocket", "Pocket")
pocket1.Profile = sketch3
pocket1.Type = "ThroughAll"
pocket1.Midplane = True
doc.recompute()

datumplane = body.newObject("PartDesign::Plane", "DatumPlane")
datumplane.AttachmentSupport = (doc.getObject("XY_Plane"), [""])
datumplane.MapMode = "FlatFace"
datumplane.AttachmentOffset = App.Placement(Vector(0, 0, 20), App.Rotation())
mirrored = body.newObject("PartDesign::Mirrored", "Mirrored")
mirrored.Originals = [pad2]
mirrored.MirrorPlane = (datumplane, [""])
body.Tip = mirrored

# Sketch on XY plane
sketch4 = body.newObject("Sketcher::SketchObject", "Sketch003")
sketch4.AttachmentSupport = (doc.getObject("XY_Plane"), [""])
sketch4.MapMode = "FlatFace"
sketch4.AttachmentOffset = App.Placement(Vector(0, 0, -8), App.Rotation())
sketch4.addGeometry(Part.Circle(Vector(0, 0, 0), Vector(0, 0, 1), 5), False)
sketch4.addConstraint(Sketcher.Constraint("Coincident", 0, 3, -1, 1))
sketch4.addConstraint(Sketcher.Constraint("Diameter", 0, 10.0))
pocket2 = body.newObject("PartDesign::Pocket", "Pocket001")
pocket2.Profile = sketch4
pocket2.Type = "ThroughAll"
pocket2.Reversed = True

doc.recompute()
